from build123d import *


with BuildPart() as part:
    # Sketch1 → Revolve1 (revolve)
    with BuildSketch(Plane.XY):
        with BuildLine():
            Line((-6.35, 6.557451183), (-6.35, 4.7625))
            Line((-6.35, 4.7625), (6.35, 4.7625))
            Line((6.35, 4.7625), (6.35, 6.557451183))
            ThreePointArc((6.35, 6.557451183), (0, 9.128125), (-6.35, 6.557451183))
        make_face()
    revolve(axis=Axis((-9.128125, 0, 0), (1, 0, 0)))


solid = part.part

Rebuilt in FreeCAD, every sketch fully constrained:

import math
import FreeCAD as App
import Part
import Sketcher
from FreeCAD import Vector
Q = App.Units.Quantity

doc = App.newDocument("Part")
body = doc.addObject("PartDesign::Body", "Body")

# Sketch on XY plane
sketch1 = body.newObject("Sketcher::SketchObject", "Sketch")
sketch1.AttachmentSupport = (doc.getObject("XY_Plane"), [""])
sketch1.MapMode = "FlatFace"
sketch1.addGeometry([
    Part.LineSegment(Vector(-6.35, 6.557451, 0), Vector(-6.35, 4.7625, 0)),
    Part.LineSegment(Vector(-6.35, 4.7625, 0), Vector(6.35, 4.7625, 0)),
    Part.LineSegment(Vector(6.35, 4.7625, 0), Vector(6.35, 6.557451, 0)),
    Part.ArcOfCircle(Part.Circle(Vector(0, 0, 0), Vector(0, 0, 1), 9.128125), math.radians(45.92079), math.radians(134.07921)),
], False)
sketch1.addConstraint([
    Sketcher.Constraint("Coincident", 0, 2, 1, 1),
    Sketcher.Constraint("Coincident", 1, 2, 2, 1),
    Sketcher.Constraint("Coincident", 2, 2, 3, 1),
    Sketcher.Constraint("Coincident", 3, 2, 0, 1),
    Sketcher.Constraint("Vertical", 0),
    Sketcher.Constraint("Horizontal", 1),
    Sketcher.Constraint("Vertical", 2),
    Sketcher.Constraint("Coincident", 3, 3, -1, 1),
    Sketcher.Constraint("Horizontal", 2, 2, 3, 2),
    Sketcher.Constraint("DistanceX", 1, 1, 1, 2, Q("0.5 in")),
    Sketcher.Constraint("Radius", 3, Q("0.359375 in")),
    Sketcher.Constraint("DistanceY", -1, 1, 0, 2, Q("0.1875 in")),
])
revolution = body.newObject("PartDesign::Revolution", "Revolution")
revolution.Profile = sketch1
revolution.ReferenceAxis = (sketch1, ["H_Axis"])
revolution.Angle = 360

doc.recompute()
